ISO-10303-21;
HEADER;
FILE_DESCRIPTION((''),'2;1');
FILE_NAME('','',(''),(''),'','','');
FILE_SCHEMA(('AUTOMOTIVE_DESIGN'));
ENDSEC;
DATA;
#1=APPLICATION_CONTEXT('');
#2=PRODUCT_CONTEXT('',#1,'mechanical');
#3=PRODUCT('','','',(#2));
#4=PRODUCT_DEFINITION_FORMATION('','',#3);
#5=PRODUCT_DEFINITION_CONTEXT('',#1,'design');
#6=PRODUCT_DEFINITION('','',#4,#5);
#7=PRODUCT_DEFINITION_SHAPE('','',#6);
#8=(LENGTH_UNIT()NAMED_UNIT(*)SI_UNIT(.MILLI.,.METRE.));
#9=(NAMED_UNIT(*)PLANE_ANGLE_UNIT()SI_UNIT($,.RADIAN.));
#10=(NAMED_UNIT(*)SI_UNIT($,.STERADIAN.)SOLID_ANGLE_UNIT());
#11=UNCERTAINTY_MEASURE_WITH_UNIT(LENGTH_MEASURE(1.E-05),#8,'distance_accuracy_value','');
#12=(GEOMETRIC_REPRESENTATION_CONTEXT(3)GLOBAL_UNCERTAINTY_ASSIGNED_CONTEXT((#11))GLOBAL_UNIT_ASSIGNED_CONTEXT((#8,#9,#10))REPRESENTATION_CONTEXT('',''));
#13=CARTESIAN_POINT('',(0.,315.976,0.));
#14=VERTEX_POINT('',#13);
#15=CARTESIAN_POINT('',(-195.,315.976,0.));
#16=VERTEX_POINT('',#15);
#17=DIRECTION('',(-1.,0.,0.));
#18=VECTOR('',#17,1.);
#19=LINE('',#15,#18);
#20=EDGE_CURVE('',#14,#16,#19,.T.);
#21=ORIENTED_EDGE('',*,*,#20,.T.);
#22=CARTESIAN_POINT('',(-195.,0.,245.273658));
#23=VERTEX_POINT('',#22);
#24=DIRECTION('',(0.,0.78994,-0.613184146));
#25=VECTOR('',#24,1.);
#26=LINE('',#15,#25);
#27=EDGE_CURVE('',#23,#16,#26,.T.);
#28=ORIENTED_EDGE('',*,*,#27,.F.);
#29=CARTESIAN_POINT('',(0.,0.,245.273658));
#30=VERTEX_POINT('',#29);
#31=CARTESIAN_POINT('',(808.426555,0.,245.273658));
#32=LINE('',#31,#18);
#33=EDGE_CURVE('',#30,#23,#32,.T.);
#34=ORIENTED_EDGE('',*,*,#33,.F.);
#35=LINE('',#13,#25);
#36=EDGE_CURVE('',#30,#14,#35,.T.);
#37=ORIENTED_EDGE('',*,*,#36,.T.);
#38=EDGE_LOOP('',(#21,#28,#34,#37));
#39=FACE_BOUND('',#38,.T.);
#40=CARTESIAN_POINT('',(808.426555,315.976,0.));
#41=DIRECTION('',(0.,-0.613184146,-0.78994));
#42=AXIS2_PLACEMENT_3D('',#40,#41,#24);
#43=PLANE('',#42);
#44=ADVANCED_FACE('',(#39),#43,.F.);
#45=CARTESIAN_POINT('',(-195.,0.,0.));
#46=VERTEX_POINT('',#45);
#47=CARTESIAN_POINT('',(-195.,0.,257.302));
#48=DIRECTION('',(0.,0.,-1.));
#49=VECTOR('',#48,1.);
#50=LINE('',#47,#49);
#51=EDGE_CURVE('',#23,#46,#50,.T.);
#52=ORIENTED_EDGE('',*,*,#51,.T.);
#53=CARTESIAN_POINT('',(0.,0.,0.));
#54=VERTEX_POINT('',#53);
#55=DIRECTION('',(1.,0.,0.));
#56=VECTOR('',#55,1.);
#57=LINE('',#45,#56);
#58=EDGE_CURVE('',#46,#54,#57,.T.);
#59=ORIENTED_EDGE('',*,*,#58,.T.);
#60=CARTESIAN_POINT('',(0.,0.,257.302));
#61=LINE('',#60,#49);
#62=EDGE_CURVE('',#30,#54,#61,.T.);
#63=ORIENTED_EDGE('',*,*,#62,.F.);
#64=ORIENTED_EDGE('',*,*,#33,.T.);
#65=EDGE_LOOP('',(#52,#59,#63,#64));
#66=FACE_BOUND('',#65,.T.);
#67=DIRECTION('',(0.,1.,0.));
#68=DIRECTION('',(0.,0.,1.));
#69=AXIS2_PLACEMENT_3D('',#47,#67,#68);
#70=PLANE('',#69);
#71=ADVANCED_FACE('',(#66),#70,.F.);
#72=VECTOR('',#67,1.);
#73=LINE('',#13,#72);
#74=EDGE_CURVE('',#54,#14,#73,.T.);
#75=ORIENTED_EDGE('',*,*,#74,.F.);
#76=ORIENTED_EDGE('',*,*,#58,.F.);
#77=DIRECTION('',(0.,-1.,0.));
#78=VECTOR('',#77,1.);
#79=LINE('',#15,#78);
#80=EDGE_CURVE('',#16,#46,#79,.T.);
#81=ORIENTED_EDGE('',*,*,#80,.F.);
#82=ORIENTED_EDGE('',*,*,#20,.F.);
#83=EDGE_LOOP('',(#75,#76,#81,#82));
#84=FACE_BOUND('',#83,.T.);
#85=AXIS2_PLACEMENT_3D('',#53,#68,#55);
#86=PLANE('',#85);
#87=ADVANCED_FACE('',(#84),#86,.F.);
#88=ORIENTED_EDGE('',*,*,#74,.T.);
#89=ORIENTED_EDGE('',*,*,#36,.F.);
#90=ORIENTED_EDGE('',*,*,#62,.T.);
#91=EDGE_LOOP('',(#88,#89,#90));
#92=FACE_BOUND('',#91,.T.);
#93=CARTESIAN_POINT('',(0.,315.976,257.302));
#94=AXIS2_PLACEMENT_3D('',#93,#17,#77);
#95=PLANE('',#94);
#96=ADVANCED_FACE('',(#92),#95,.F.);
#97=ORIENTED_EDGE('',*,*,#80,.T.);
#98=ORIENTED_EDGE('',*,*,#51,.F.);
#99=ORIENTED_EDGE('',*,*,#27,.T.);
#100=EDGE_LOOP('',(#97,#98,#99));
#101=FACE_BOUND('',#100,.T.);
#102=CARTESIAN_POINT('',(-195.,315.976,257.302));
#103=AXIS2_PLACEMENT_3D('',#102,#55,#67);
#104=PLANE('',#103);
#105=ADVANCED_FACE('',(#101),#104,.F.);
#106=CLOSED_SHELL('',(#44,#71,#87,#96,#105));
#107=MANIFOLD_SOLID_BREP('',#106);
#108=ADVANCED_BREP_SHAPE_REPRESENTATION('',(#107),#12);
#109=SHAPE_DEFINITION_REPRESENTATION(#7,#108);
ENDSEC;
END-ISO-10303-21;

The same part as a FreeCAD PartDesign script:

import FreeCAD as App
import Part
import Sketcher

V = App.Vector
Q = App.Units.Quantity

doc = App.newDocument("Part")
body = doc.addObject("PartDesign::Body", "Body")

# Sketch on XY plane
sketch1 = doc.addObject("Sketcher::SketchObject", "Sketch")
body.addObject(sketch1)
sketch1.AttachmentSupport = (doc.XY_Plane, [""])
sketch1.MapMode = "FlatFace"
sketch1.addGeometry(Part.LineSegment(V(-195, 315.976, 0), V(-195, 0, 0)), False)
sketch1.addGeometry(Part.LineSegment(V(-195, 0, 0), V(0, 0, 0)), False)
sketch1.addGeometry(Part.LineSegment(V(0, 0, 0), V(0, 315.976, 0)), False)
sketch1.addGeometry(Part.LineSegment(V(0, 315.976, 0), V(-195, 315.976, 0)), False)
sketch1.addConstraint(Sketcher.Constraint("Coincident", 0, 2, 1, 1))
sketch1.addConstraint(Sketcher.Constraint("Coincident", 1, 2, 2, 1))
sketch1.addConstraint(Sketcher.Constraint("Coincident", 2, 2, 3, 1))
sketch1.addConstraint(Sketcher.Constraint("Coincident", 3, 2, 0, 1))
sketch1.addConstraint(Sketcher.Constraint("Vertical", 0))
sketch1.addConstraint(Sketcher.Constraint("Horizontal", 1))
sketch1.addConstraint(Sketcher.Constraint("Vertical", 2))
sketch1.addConstraint(Sketcher.Constraint("Horizontal", 3))
sketch1.addConstraint(Sketcher.Constraint("Coincident", 1, 2, -1, 1))
sketch1.addConstraint(Sketcher.Constraint("DistanceY", 0, 2, 0, 1, Q("12.44 in")))
sketch1.addConstraint(Sketcher.Constraint("DistanceX", 1, 1, 1, 2, Q("195 mm")))
pad1 = doc.addObject("PartDesign::Pad", "Pad")
body.addObject(pad1)
pad1.Profile = sketch1
pad1.Length = Q("10.13 in")

# Sketch on YZ plane
sketch2 = doc.addObject("Sketcher::SketchObject", "Sketch001")
body.addObject(sketch2)
sketch2.AttachmentSupport = (doc.YZ_Plane, [""])
sketch2.MapMode = "FlatFace"
sketch2.addGeometry(Part.LineSegment(V(-651.678986, 751.133878, 0), V(967.654986, -505.86022, 0)), False)
sketch2.addGeometry(Part.LineSegment(V(967.654986, -505.86022, 0), V(1979.375425, 797.497752, 0)), False)
sketch2.addGeometry(Part.LineSegment(V(1979.375425, 797.497752, 0), V(360.041454, 2054.491849, 0)), False)
sketch2.addGeometry(Part.LineSegment(V(360.041454, 2054.491849, 0), V(-651.678986, 751.133878, 0)), False)
sketch2.addConstraint(Sketcher.Constraint("Coincident", 0, 2, 1, 1))
sketch2.addConstraint(Sketcher.Constraint("Coincident", 1, 2, 2, 1))
sketch2.addConstraint(Sketcher.Constraint("Coincident", 2, 2, 3, 1))
sketch2.addConstraint(Sketcher.Constraint("Coincident", 3, 2, 0, 1))
sketch2.addConstraint(Sketcher.Constraint("Perpendicular", 0, 1))
sketch2.addConstraint(Sketcher.Constraint("Perpendicular", 1, 2))
sketch2.addConstraint(Sketcher.Constraint("Perpendicular", 2, 3))
sketch2.addConstraint(Sketcher.Constraint("DistanceY", -1, 1, 3, 2, Q("29.5721999 in")))
sketch2.addConstraint(Sketcher.Constraint("Distance", 0, Q("2049.945529 mm")))
sketch2.addConstraint(Sketcher.Constraint("Distance", 1, Q("1649.945529 mm")))
sketch2.addConstraint(Sketcher.Constraint("DistanceY", 0, 2, -1, 1, Q("505.86022 mm")))
sketch2.addConstraint(Sketcher.Constraint("DistanceX", -1, 1, 0, 2, Q("967.654986 mm")))
pocket1 = doc.addObject("PartDesign::Pocket", "Pocket")
body.addObject(pocket1)
pocket1.Profile = sketch2
pocket1.Type = "ThroughAll"
pocket1.Midplane = True

doc.recompute()
